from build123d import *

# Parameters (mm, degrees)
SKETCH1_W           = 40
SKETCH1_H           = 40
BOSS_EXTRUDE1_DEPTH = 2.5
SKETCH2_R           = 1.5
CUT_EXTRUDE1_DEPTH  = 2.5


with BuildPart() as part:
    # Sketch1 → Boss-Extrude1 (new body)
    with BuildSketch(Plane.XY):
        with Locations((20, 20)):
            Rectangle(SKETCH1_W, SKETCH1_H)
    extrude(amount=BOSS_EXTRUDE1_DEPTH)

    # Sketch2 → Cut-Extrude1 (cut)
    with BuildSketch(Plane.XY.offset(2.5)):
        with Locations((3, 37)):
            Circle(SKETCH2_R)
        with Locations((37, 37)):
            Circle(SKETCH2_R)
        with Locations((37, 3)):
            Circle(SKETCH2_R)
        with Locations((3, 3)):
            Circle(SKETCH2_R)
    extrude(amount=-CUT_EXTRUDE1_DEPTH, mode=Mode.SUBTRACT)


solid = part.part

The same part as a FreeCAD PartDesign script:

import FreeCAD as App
import Part
import Sketcher
from FreeCAD import Vector


def add_polygon(sketch, points):
    """Adds a closed chain of lines whose ends are joined by coincident constraints."""
    first, n = sketch.GeometryCount, len(points)
    for a, b in zip(points, points[1:] + points[:1]):
        sketch.addGeometry(Part.LineSegment(App.Vector(*a, 0), App.Vector(*b, 0)), False)
    for i in range(n):
        sketch.addConstraint(Sketcher.Constraint("Coincident", first + i, 2, first + (i + 1) % n, 1))

doc = App.newDocument("Part")
params = doc.addObject("Spreadsheet::Sheet", "Params")
for row, (alias, value) in enumerate([
    ("sketch1_width", "40 mm"),
    ("pad1_length", "2.5 mm"),
    ("sketch2_diameter", "3 mm"),
    ("pocket1_length", "2.5 mm"),
], start=1):
    params.set(f"A{row}", alias)
    params.set(f"B{row}", "=" + value)
    params.setAlias(f"B{row}", alias)

body = doc.addObject("PartDesign::Body", "Body")

# Sketch on XY plane
sketch1 = doc.addObject("Sketcher::SketchObject", "Sketch")
body.addObject(sketch1)
sketch1.AttachmentSupport = (doc.XY_Plane, [""])
sketch1.MapMode = "FlatFace"
add_polygon(sketch1, [(0, 40), (0, 0), (40, 0), (40, 40)])  # lines 0-3
sketch1.addConstraint(Sketcher.Constraint("Vertical", 0))
sketch1.addConstraint(Sketcher.Constraint("Horizontal", 1))
sketch1.addConstraint(Sketcher.Constraint("Vertical", 2))
sketch1.addConstraint(Sketcher.Constraint("Horizontal", 3))
sketch1.addConstraint(Sketcher.Constraint("Coincident", 0, 2, -1, 1))
sketch1.addConstraint(Sketcher.Constraint("Equal", 3, 0))
sketch1.addConstraint(Sketcher.Constraint("DistanceX", 1, 1, 1, 2, 40.0))
sketch1.setExpression("Constraints[10]", "Params.sketch1_width")
pad1 = doc.addObject("PartDesign::Pad", "Pad")
body.addObject(pad1)
pad1.Profile = sketch1
pad1.setExpression("Length", "Params.pad1_length")

# Sketch on XY plane
sketch2 = doc.addObject("Sketcher::SketchObject", "Sketch001")
body.addObject(sketch2)
sketch2.AttachmentSupport = (doc.XY_Plane, [""])
sketch2.MapMode = "FlatFace"
sketch2.AttachmentOffset = App.Placement(Vector(0, 0, 2.5), App.Rotation())
sketch2.addGeometry(Part.Circle(Vector(3, 37, 0), Vector(0, 0, 1), 1.5), False)
sketch2.addGeometry(Part.Circle(Vector(37, 37, 0), Vector(0, 0, 1), 1.5), False)
sketch2.addGeometry(Part.Circle(Vector(37, 3, 0), Vector(0, 0, 1), 1.5), False)
sketch2.addGeometry(Part.Circle(Vector(3, 3, 0), Vector(0, 0, 1), 1.5), False)
sketch2.addConstraint(Sketcher.Constraint("Equal", 0, 1))
sketch2.addConstraint(Sketcher.Constraint("Equal", 1, 2))
sketch2.addConstraint(Sketcher.Constraint("Equal", 2, 3))
sketch2.addConstraint(Sketcher.Constraint("Horizontal", 0, 3, 1, 3))
sketch2.addConstraint(Sketcher.Constraint("Horizontal", 2, 3, 3, 3))
sketch2.addConstraint(Sketcher.Constraint("Vertical", 1, 3, 2, 3))
sketch2.addConstraint(Sketcher.Constraint("Vertical", 0, 3, 3, 3))
sketch2.addConstraint(Sketcher.Constraint("Diameter", 0, 3.0))
sketch2.addConstraint(Sketcher.Constraint("DistanceX", -1, 1, 0, 3, 3.0))
sketch2.addConstraint(Sketcher.Constraint("DistanceY", -1, 1, 0, 3, 37.0))
sketch2.addConstraint(Sketcher.Constraint("DistanceX", -1, 1, 1, 3, 37.0))
sketch2.addConstraint(Sketcher.Constraint("DistanceY", -1, 1, 2, 3, 3.0))
sketch2.setExpression("Constraints[7]", "Params.sketch2_diameter")
pocket1 = doc.addObject("PartDesign::Pocket", "Pocket")
body.addObject(pocket1)
pocket1.Profile = sketch2
pocket1.setExpression("Length", "Params.pocket1_length")

doc.recompute()
